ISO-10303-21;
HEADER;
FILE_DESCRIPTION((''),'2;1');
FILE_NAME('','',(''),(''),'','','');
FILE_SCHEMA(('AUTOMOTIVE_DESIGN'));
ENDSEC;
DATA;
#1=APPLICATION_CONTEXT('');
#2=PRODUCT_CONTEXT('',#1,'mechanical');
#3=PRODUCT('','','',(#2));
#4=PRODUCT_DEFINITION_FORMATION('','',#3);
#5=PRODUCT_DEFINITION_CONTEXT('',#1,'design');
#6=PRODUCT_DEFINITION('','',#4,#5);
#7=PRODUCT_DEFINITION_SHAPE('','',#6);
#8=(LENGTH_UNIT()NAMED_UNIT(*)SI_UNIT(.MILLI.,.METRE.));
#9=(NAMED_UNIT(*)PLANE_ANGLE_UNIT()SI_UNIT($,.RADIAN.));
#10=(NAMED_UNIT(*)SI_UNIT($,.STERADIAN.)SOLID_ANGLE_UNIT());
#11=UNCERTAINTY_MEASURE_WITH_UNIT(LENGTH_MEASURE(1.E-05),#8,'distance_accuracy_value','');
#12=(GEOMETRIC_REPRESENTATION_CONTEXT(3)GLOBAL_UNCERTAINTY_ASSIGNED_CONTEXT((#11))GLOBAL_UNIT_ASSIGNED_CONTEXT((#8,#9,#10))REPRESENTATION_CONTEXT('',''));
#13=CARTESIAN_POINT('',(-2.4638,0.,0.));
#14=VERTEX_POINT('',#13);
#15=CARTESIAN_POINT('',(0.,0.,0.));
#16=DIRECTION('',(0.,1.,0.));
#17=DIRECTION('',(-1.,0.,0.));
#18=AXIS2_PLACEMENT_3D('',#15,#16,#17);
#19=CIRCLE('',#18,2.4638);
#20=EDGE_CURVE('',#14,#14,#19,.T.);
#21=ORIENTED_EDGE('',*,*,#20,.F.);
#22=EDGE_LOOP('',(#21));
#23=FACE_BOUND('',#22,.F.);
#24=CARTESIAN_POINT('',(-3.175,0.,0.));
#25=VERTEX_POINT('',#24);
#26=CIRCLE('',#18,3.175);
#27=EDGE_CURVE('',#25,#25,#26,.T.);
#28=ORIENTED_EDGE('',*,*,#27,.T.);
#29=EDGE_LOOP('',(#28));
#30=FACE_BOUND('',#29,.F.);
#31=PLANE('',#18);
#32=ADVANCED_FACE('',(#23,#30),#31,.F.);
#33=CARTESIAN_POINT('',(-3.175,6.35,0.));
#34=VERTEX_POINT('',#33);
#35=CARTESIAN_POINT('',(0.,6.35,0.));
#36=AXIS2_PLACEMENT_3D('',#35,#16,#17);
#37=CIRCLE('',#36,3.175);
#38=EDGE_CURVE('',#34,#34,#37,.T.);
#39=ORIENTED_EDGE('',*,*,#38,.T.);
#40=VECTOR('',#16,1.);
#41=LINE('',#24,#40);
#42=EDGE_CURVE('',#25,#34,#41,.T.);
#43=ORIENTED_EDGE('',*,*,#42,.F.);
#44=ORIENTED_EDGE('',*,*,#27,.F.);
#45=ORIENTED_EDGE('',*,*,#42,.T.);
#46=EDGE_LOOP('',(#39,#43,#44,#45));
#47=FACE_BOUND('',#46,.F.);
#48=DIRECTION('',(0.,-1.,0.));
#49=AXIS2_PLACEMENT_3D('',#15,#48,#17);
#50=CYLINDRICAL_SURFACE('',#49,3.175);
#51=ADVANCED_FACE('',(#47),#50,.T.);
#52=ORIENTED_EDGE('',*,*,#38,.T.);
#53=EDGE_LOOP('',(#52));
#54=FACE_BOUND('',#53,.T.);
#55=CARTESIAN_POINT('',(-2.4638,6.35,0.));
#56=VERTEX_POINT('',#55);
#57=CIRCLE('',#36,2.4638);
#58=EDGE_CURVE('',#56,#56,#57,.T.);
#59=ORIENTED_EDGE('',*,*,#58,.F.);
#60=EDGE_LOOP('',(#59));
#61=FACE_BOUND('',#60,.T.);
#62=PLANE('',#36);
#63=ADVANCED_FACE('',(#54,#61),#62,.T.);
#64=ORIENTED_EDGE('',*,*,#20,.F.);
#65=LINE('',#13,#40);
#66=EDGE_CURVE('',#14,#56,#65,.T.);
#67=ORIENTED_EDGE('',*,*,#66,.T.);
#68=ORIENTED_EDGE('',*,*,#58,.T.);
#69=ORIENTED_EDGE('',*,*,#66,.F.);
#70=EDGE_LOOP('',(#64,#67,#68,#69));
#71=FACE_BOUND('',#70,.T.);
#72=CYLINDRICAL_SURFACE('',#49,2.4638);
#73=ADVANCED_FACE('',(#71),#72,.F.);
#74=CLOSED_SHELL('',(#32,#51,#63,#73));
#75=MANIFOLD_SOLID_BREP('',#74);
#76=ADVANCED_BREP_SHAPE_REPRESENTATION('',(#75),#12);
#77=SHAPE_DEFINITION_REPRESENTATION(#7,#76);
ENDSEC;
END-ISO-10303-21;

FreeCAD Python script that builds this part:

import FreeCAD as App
import Part
import Sketcher
from FreeCAD import Vector
Q = App.Units.Quantity

doc = App.newDocument("Part")
params = doc.addObject("Spreadsheet::Sheet", "Params")
for row, (alias, value) in enumerate([
    ("sketch1_diameter", "0.25 in"),
    ("sketch1_diameter2", "0.194 in"),
    ("pad1_length", "0.25 in"),
], start=1):
    params.set(f"A{row}", alias)
    params.set(f"B{row}", "=" + value)
    params.setAlias(f"B{row}", alias)

body = doc.addObject("PartDesign::Body", "Body")

# Sketch on XZ plane
sketch1 = body.newObject("Sketcher::SketchObject", "Sketch")
sketch1.AttachmentSupport = (doc.getObject("XZ_Plane"), [""])
sketch1.MapMode = "FlatFace"
sketch1.addGeometry([
    Part.Circle(Vector(0, 0, 0), Vector(0, 0, 1), 3.175),
    Part.Circle(Vector(0, 0, 0), Vector(0, 0, 1), 2.4638),
], False)
sketch1.addConstraint([
    Sketcher.Constraint("Coincident", 0, 3, -1, 1),
    Sketcher.Constraint("Coincident", 1, 3, -1, 1),
    Sketcher.Constraint("Diameter", 0, Q("0.25 in")),
    Sketcher.Constraint("Diameter", 1, Q("0.194 in")),
])
sketch1.setExpression("Constraints[2]", "Params.sketch1_diameter")
sketch1.setExpression("Constraints[3]", "Params.sketch1_diameter2")
pad1 = body.newObject("PartDesign::Pad", "Pad")
pad1.Profile = sketch1
pad1.setExpression("Length", "Params.pad1_length")
pad1.Reversed = True

doc.recompute()
